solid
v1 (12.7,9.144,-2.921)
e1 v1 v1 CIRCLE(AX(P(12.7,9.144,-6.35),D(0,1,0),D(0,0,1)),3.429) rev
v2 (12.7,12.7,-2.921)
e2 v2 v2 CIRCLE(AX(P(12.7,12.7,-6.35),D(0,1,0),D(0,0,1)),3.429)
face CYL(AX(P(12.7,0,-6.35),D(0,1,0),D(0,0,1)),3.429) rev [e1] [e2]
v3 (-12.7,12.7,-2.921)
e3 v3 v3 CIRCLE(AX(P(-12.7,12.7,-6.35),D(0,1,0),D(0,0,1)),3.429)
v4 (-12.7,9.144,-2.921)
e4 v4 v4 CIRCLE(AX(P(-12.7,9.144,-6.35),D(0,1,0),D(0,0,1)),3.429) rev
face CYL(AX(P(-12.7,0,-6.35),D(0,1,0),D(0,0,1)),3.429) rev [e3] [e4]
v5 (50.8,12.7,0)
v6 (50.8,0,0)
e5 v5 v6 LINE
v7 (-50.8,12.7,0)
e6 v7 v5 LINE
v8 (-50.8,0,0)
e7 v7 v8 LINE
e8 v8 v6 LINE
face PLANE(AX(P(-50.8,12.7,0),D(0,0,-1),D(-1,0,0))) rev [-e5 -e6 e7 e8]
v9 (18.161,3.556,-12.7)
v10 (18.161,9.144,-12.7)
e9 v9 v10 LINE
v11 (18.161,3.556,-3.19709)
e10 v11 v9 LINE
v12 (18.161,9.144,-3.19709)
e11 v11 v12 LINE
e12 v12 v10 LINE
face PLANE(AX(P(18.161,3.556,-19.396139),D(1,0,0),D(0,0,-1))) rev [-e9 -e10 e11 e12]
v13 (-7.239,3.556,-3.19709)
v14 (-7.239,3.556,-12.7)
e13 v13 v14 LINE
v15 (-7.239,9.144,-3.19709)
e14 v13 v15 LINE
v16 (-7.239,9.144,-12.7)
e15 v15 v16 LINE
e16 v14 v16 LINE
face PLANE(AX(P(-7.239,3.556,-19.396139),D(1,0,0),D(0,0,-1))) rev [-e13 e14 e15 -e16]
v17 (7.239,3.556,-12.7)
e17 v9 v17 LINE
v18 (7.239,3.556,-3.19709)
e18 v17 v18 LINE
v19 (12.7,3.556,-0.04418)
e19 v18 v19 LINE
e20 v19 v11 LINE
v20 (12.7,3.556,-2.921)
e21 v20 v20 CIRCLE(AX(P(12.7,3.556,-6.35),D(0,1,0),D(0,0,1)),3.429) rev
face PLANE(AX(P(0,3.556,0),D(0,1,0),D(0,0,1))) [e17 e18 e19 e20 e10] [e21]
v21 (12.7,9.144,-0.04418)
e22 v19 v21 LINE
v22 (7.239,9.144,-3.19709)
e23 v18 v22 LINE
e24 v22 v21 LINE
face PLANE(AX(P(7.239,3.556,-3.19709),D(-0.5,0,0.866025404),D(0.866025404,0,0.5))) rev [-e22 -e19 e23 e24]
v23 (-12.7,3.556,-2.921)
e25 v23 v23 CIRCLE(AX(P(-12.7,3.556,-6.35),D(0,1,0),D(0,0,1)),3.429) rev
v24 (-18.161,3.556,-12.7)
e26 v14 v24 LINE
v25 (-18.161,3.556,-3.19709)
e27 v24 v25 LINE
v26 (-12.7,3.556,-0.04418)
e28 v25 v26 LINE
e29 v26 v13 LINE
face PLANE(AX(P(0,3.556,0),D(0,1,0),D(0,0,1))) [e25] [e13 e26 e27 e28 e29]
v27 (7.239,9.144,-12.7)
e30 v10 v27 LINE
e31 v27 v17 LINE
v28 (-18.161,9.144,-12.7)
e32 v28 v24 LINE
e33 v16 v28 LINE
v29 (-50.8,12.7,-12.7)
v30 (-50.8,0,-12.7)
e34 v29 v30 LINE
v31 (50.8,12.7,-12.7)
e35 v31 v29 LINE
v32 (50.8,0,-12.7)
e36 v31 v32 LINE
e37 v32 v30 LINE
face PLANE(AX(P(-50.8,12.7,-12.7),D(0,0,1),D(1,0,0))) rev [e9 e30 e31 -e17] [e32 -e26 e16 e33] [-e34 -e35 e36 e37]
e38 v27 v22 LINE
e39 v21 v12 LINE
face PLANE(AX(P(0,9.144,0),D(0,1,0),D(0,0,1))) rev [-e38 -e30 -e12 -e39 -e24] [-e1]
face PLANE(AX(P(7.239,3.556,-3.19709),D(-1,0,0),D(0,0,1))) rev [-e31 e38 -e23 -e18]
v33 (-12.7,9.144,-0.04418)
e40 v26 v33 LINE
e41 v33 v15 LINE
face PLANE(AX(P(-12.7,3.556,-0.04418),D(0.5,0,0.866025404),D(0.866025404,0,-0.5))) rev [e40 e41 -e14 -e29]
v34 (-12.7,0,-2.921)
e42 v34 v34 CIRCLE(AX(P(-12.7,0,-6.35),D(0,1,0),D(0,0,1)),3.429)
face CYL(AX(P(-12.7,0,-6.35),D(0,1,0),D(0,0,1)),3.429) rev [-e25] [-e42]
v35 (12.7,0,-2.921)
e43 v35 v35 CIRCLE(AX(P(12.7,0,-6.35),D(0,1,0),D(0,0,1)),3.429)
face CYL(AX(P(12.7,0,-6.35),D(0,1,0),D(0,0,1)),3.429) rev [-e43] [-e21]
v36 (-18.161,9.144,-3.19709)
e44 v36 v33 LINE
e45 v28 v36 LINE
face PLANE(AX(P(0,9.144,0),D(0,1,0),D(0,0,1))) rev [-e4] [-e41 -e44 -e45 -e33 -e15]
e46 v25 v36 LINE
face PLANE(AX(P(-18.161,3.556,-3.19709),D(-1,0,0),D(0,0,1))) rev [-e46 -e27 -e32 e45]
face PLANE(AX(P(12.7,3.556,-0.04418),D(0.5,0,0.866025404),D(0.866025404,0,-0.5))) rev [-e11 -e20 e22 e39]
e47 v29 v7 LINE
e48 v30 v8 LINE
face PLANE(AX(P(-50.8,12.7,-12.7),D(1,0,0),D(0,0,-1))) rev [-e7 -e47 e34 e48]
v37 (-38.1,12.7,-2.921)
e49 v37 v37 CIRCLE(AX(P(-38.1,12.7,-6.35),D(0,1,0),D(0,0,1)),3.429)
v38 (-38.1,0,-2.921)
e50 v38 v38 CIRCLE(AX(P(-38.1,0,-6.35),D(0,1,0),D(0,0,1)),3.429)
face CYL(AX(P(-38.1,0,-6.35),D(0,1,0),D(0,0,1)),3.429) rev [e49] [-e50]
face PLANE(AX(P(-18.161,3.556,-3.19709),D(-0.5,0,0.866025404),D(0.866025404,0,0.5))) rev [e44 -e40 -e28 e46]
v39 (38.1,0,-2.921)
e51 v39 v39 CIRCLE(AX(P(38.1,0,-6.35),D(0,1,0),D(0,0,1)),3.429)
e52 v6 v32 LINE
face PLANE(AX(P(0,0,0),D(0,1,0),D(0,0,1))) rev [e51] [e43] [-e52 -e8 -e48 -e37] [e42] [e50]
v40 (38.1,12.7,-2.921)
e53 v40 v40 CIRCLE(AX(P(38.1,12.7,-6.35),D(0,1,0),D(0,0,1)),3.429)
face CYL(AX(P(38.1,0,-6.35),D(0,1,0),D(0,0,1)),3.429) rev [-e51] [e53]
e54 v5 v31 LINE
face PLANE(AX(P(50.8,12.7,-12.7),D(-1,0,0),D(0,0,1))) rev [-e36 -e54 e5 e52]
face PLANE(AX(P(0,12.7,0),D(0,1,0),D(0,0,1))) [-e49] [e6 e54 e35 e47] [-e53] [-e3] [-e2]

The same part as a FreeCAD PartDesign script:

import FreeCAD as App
import Part
import Sketcher

V = App.Vector
Q = App.Units.Quantity


def add_polygon(sketch, points):
    """Adds a closed chain of lines whose ends are joined by coincident constraints."""
    first, n = sketch.GeometryCount, len(points)
    for a, b in zip(points, points[1:] + points[:1]):
        sketch.addGeometry(Part.LineSegment(App.Vector(*a, 0), App.Vector(*b, 0)), False)
    for i in range(n):
        sketch.addConstraint(Sketcher.Constraint("Coincident", first + i, 2, first + (i + 1) % n, 1))

doc = App.newDocument("Part")
params = doc.addObject("Spreadsheet::Sheet", "Params")
for row, (alias, value) in enumerate([
    ("sketch1_width", "4 in"),
    ("sketch1_height", "0.5 in"),
    ("pad1_length", "0.5 in"),
    ("sketch2_diameter", "0.27 in"),
    ("sketch3_width", "0.43 in"),
    ("pocket2_length", "0.22 in"),
], start=1):
    params.set(f"A{row}", alias)
    params.set(f"B{row}", "=" + value)
    params.setAlias(f"B{row}", alias)

body = doc.addObject("PartDesign::Body", "Body")

# Sketch on XZ plane
sketch1 = doc.addObject("Sketcher::SketchObject", "Sketch")
body.addObject(sketch1)
sketch1.AttachmentSupport = (doc.XZ_Plane, [""])
sketch1.MapMode = "FlatFace"
add_polygon(sketch1, [(-50.8, -12.7), (-50.8, 0), (50.8, 0), (50.8, -12.7)])  # lines 0-3
sketch1.addConstraint(Sketcher.Constraint("Vertical", 0))
sketch1.addConstraint(Sketcher.Constraint("Horizontal", 1))
sketch1.addConstraint(Sketcher.Constraint("Vertical", 2))
sketch1.addConstraint(Sketcher.Constraint("Horizontal", 3))
sketch1.addConstraint(Sketcher.Constraint("Symmetric", 0, 2, 1, 2, -1, 1))
sketch1.addConstraint(Sketcher.Constraint("DistanceX", 1, 1, 1, 2, Q("4 in")))
sketch1.addConstraint(Sketcher.Constraint("DistanceY", 0, 1, 0, 2, Q("0.5 in")))
sketch1.setExpression("Constraints[9]", "Params.sketch1_width")
sketch1.setExpression("Constraints[10]", "Params.sketch1_height")
pad1 = doc.addObject("PartDesign::Pad", "Pad")
body.addObject(pad1)
pad1.Profile = sketch1
pad1.setExpression("Length", "Params.pad1_length")
pad1.Reversed = True

# Sketch on XZ plane
sketch2 = doc.addObject("Sketcher::SketchObject", "Sketch001")
body.addObject(sketch2)
sketch2.AttachmentSupport = (doc.XZ_Plane, [""])
sketch2.MapMode = "FlatFace"
sketch2.AttachmentOffset = App.Placement(V(0, 0, -0.5 * 25.4), App.Rotation())
sketch2.addGeometry(Part.Circle(V(-38.1, -6.35, 0), V(0, 0, 1), 3.429), False)
sketch2.addGeometry(Part.Circle(V(38.1, -6.35, 0), V(0, 0, 1), 3.429), False)
sketch2.addGeometry(Part.Circle(V(-12.7, -6.35, 0), V(0, 0, 1), 3.429), False)
sketch2.addGeometry(Part.Circle(V(12.7, -6.35, 0), V(0, 0, 1), 3.429), False)
sketch2.addConstraint(Sketcher.Constraint("Equal", 0, 1))
sketch2.addConstraint(Sketcher.Constraint("Equal", 1, 2))
sketch2.addConstraint(Sketcher.Constraint("Equal", 2, 3))
sketch2.addConstraint(Sketcher.Constraint("Symmetric", 0, 3, 1, 3, -2))
sketch2.addConstraint(Sketcher.Constraint("Symmetric", 2, 3, 3, 3, -2))
sketch2.addConstraint(Sketcher.Constraint("Horizontal", 1, 3, 2, 3))
sketch2.addConstraint(Sketcher.Constraint("Diameter", 0, Q("0.27 in")))
sketch2.addConstraint(Sketcher.Constraint("DistanceX", 0, 3, 1, 3, Q("3 in")))
sketch2.addConstraint(Sketcher.Constraint("DistanceX", 0, 3, 2, 3, Q("1 in")))
sketch2.addConstraint(Sketcher.Constraint("DistanceY", 0, 3, -1, 1, Q("0.25 in")))
sketch2.setExpression("Constraints[6]", "Params.sketch2_diameter")
pocket1 = doc.addObject("PartDesign::Pocket", "Pocket")
body.addObject(pocket1)
pocket1.Profile = sketch2
pocket1.Type = "ThroughAll"
pocket1.Reversed = True

# Sketch on XZ plane
sketch3 = doc.addObject("Sketcher::SketchObject", "Sketch002")
body.addObject(sketch3)
sketch3.AttachmentSupport = (doc.XZ_Plane, [""])
sketch3.MapMode = "FlatFace"
sketch3.AttachmentOffset = App.Placement(V(0, 0, -0.25 * 25.4), App.Rotation())
add_polygon(sketch3, [(-18.161, -19.396139), (-18.161, -3.19709), (-12.7, -0.04418), (-7.239, -3.19709), (-7.239, -19.396139)])  # lines 0-4
add_polygon(sketch3, [(18.161, -19.396139), (7.239, -19.396139), (7.239, -3.19709), (12.7, -0.04418), (18.161, -3.19709)])  # lines 5-9
sketch3.addConstraint(Sketcher.Constraint("Vertical", 0))
sketch3.addConstraint(Sketcher.Constraint("Vertical", 3))
sketch3.addConstraint(Sketcher.Constraint("Horizontal", 4))
sketch3.addConstraint(Sketcher.Constraint("Horizontal", 5))
sketch3.addConstraint(Sketcher.Constraint("Vertical", 6))
sketch3.addConstraint(Sketcher.Constraint("Vertical", 9))
sketch3.addConstraint(Sketcher.Constraint("Symmetric", 3, 2, 5, 2, -2))
sketch3.addConstraint(Sketcher.Constraint("Symmetric", 1, 2, 7, 2, -2))
sketch3.addConstraint(Sketcher.Constraint("Symmetric", 0, 2, 8, 2, -2))
sketch3.addConstraint(Sketcher.Constraint("Parallel", 1, 7))
sketch3.addConstraint(Sketcher.Constraint("Parallel", 2, 8))
sketch3.addConstraint(Sketcher.Constraint("Horizontal", 0, 2, 2, 2))
sketch3.addConstraint(Sketcher.Constraint("Angle", 1, Q("30 deg")))
sketch3.addConstraint(Sketcher.Constraint("DistanceX", 4, 2, 5, 2, Q("1 in")))
sketch3.addConstraint(Sketcher.Constraint("DistanceX", 4, 2, 4, 1, Q("0.43 in")))
sketch3.addConstraint(Sketcher.Constraint("DistanceY", 0, 1, 0, 2, Q("16.199049 mm")))
sketch3.addConstraint(Sketcher.Constraint("DistanceY", 0, 2, -1, 1, Q("3.19709 mm")))
sketch3.setExpression("Constraints[24]", "Params.sketch3_width")
pocket2 = doc.addObject("PartDesign::Pocket", "Pocket001")
body.addObject(pocket2)
pocket2.Profile = sketch3
pocket2.setExpression("Length", "Params.pocket2_length")
pocket2.Midplane = True

doc.recompute()
